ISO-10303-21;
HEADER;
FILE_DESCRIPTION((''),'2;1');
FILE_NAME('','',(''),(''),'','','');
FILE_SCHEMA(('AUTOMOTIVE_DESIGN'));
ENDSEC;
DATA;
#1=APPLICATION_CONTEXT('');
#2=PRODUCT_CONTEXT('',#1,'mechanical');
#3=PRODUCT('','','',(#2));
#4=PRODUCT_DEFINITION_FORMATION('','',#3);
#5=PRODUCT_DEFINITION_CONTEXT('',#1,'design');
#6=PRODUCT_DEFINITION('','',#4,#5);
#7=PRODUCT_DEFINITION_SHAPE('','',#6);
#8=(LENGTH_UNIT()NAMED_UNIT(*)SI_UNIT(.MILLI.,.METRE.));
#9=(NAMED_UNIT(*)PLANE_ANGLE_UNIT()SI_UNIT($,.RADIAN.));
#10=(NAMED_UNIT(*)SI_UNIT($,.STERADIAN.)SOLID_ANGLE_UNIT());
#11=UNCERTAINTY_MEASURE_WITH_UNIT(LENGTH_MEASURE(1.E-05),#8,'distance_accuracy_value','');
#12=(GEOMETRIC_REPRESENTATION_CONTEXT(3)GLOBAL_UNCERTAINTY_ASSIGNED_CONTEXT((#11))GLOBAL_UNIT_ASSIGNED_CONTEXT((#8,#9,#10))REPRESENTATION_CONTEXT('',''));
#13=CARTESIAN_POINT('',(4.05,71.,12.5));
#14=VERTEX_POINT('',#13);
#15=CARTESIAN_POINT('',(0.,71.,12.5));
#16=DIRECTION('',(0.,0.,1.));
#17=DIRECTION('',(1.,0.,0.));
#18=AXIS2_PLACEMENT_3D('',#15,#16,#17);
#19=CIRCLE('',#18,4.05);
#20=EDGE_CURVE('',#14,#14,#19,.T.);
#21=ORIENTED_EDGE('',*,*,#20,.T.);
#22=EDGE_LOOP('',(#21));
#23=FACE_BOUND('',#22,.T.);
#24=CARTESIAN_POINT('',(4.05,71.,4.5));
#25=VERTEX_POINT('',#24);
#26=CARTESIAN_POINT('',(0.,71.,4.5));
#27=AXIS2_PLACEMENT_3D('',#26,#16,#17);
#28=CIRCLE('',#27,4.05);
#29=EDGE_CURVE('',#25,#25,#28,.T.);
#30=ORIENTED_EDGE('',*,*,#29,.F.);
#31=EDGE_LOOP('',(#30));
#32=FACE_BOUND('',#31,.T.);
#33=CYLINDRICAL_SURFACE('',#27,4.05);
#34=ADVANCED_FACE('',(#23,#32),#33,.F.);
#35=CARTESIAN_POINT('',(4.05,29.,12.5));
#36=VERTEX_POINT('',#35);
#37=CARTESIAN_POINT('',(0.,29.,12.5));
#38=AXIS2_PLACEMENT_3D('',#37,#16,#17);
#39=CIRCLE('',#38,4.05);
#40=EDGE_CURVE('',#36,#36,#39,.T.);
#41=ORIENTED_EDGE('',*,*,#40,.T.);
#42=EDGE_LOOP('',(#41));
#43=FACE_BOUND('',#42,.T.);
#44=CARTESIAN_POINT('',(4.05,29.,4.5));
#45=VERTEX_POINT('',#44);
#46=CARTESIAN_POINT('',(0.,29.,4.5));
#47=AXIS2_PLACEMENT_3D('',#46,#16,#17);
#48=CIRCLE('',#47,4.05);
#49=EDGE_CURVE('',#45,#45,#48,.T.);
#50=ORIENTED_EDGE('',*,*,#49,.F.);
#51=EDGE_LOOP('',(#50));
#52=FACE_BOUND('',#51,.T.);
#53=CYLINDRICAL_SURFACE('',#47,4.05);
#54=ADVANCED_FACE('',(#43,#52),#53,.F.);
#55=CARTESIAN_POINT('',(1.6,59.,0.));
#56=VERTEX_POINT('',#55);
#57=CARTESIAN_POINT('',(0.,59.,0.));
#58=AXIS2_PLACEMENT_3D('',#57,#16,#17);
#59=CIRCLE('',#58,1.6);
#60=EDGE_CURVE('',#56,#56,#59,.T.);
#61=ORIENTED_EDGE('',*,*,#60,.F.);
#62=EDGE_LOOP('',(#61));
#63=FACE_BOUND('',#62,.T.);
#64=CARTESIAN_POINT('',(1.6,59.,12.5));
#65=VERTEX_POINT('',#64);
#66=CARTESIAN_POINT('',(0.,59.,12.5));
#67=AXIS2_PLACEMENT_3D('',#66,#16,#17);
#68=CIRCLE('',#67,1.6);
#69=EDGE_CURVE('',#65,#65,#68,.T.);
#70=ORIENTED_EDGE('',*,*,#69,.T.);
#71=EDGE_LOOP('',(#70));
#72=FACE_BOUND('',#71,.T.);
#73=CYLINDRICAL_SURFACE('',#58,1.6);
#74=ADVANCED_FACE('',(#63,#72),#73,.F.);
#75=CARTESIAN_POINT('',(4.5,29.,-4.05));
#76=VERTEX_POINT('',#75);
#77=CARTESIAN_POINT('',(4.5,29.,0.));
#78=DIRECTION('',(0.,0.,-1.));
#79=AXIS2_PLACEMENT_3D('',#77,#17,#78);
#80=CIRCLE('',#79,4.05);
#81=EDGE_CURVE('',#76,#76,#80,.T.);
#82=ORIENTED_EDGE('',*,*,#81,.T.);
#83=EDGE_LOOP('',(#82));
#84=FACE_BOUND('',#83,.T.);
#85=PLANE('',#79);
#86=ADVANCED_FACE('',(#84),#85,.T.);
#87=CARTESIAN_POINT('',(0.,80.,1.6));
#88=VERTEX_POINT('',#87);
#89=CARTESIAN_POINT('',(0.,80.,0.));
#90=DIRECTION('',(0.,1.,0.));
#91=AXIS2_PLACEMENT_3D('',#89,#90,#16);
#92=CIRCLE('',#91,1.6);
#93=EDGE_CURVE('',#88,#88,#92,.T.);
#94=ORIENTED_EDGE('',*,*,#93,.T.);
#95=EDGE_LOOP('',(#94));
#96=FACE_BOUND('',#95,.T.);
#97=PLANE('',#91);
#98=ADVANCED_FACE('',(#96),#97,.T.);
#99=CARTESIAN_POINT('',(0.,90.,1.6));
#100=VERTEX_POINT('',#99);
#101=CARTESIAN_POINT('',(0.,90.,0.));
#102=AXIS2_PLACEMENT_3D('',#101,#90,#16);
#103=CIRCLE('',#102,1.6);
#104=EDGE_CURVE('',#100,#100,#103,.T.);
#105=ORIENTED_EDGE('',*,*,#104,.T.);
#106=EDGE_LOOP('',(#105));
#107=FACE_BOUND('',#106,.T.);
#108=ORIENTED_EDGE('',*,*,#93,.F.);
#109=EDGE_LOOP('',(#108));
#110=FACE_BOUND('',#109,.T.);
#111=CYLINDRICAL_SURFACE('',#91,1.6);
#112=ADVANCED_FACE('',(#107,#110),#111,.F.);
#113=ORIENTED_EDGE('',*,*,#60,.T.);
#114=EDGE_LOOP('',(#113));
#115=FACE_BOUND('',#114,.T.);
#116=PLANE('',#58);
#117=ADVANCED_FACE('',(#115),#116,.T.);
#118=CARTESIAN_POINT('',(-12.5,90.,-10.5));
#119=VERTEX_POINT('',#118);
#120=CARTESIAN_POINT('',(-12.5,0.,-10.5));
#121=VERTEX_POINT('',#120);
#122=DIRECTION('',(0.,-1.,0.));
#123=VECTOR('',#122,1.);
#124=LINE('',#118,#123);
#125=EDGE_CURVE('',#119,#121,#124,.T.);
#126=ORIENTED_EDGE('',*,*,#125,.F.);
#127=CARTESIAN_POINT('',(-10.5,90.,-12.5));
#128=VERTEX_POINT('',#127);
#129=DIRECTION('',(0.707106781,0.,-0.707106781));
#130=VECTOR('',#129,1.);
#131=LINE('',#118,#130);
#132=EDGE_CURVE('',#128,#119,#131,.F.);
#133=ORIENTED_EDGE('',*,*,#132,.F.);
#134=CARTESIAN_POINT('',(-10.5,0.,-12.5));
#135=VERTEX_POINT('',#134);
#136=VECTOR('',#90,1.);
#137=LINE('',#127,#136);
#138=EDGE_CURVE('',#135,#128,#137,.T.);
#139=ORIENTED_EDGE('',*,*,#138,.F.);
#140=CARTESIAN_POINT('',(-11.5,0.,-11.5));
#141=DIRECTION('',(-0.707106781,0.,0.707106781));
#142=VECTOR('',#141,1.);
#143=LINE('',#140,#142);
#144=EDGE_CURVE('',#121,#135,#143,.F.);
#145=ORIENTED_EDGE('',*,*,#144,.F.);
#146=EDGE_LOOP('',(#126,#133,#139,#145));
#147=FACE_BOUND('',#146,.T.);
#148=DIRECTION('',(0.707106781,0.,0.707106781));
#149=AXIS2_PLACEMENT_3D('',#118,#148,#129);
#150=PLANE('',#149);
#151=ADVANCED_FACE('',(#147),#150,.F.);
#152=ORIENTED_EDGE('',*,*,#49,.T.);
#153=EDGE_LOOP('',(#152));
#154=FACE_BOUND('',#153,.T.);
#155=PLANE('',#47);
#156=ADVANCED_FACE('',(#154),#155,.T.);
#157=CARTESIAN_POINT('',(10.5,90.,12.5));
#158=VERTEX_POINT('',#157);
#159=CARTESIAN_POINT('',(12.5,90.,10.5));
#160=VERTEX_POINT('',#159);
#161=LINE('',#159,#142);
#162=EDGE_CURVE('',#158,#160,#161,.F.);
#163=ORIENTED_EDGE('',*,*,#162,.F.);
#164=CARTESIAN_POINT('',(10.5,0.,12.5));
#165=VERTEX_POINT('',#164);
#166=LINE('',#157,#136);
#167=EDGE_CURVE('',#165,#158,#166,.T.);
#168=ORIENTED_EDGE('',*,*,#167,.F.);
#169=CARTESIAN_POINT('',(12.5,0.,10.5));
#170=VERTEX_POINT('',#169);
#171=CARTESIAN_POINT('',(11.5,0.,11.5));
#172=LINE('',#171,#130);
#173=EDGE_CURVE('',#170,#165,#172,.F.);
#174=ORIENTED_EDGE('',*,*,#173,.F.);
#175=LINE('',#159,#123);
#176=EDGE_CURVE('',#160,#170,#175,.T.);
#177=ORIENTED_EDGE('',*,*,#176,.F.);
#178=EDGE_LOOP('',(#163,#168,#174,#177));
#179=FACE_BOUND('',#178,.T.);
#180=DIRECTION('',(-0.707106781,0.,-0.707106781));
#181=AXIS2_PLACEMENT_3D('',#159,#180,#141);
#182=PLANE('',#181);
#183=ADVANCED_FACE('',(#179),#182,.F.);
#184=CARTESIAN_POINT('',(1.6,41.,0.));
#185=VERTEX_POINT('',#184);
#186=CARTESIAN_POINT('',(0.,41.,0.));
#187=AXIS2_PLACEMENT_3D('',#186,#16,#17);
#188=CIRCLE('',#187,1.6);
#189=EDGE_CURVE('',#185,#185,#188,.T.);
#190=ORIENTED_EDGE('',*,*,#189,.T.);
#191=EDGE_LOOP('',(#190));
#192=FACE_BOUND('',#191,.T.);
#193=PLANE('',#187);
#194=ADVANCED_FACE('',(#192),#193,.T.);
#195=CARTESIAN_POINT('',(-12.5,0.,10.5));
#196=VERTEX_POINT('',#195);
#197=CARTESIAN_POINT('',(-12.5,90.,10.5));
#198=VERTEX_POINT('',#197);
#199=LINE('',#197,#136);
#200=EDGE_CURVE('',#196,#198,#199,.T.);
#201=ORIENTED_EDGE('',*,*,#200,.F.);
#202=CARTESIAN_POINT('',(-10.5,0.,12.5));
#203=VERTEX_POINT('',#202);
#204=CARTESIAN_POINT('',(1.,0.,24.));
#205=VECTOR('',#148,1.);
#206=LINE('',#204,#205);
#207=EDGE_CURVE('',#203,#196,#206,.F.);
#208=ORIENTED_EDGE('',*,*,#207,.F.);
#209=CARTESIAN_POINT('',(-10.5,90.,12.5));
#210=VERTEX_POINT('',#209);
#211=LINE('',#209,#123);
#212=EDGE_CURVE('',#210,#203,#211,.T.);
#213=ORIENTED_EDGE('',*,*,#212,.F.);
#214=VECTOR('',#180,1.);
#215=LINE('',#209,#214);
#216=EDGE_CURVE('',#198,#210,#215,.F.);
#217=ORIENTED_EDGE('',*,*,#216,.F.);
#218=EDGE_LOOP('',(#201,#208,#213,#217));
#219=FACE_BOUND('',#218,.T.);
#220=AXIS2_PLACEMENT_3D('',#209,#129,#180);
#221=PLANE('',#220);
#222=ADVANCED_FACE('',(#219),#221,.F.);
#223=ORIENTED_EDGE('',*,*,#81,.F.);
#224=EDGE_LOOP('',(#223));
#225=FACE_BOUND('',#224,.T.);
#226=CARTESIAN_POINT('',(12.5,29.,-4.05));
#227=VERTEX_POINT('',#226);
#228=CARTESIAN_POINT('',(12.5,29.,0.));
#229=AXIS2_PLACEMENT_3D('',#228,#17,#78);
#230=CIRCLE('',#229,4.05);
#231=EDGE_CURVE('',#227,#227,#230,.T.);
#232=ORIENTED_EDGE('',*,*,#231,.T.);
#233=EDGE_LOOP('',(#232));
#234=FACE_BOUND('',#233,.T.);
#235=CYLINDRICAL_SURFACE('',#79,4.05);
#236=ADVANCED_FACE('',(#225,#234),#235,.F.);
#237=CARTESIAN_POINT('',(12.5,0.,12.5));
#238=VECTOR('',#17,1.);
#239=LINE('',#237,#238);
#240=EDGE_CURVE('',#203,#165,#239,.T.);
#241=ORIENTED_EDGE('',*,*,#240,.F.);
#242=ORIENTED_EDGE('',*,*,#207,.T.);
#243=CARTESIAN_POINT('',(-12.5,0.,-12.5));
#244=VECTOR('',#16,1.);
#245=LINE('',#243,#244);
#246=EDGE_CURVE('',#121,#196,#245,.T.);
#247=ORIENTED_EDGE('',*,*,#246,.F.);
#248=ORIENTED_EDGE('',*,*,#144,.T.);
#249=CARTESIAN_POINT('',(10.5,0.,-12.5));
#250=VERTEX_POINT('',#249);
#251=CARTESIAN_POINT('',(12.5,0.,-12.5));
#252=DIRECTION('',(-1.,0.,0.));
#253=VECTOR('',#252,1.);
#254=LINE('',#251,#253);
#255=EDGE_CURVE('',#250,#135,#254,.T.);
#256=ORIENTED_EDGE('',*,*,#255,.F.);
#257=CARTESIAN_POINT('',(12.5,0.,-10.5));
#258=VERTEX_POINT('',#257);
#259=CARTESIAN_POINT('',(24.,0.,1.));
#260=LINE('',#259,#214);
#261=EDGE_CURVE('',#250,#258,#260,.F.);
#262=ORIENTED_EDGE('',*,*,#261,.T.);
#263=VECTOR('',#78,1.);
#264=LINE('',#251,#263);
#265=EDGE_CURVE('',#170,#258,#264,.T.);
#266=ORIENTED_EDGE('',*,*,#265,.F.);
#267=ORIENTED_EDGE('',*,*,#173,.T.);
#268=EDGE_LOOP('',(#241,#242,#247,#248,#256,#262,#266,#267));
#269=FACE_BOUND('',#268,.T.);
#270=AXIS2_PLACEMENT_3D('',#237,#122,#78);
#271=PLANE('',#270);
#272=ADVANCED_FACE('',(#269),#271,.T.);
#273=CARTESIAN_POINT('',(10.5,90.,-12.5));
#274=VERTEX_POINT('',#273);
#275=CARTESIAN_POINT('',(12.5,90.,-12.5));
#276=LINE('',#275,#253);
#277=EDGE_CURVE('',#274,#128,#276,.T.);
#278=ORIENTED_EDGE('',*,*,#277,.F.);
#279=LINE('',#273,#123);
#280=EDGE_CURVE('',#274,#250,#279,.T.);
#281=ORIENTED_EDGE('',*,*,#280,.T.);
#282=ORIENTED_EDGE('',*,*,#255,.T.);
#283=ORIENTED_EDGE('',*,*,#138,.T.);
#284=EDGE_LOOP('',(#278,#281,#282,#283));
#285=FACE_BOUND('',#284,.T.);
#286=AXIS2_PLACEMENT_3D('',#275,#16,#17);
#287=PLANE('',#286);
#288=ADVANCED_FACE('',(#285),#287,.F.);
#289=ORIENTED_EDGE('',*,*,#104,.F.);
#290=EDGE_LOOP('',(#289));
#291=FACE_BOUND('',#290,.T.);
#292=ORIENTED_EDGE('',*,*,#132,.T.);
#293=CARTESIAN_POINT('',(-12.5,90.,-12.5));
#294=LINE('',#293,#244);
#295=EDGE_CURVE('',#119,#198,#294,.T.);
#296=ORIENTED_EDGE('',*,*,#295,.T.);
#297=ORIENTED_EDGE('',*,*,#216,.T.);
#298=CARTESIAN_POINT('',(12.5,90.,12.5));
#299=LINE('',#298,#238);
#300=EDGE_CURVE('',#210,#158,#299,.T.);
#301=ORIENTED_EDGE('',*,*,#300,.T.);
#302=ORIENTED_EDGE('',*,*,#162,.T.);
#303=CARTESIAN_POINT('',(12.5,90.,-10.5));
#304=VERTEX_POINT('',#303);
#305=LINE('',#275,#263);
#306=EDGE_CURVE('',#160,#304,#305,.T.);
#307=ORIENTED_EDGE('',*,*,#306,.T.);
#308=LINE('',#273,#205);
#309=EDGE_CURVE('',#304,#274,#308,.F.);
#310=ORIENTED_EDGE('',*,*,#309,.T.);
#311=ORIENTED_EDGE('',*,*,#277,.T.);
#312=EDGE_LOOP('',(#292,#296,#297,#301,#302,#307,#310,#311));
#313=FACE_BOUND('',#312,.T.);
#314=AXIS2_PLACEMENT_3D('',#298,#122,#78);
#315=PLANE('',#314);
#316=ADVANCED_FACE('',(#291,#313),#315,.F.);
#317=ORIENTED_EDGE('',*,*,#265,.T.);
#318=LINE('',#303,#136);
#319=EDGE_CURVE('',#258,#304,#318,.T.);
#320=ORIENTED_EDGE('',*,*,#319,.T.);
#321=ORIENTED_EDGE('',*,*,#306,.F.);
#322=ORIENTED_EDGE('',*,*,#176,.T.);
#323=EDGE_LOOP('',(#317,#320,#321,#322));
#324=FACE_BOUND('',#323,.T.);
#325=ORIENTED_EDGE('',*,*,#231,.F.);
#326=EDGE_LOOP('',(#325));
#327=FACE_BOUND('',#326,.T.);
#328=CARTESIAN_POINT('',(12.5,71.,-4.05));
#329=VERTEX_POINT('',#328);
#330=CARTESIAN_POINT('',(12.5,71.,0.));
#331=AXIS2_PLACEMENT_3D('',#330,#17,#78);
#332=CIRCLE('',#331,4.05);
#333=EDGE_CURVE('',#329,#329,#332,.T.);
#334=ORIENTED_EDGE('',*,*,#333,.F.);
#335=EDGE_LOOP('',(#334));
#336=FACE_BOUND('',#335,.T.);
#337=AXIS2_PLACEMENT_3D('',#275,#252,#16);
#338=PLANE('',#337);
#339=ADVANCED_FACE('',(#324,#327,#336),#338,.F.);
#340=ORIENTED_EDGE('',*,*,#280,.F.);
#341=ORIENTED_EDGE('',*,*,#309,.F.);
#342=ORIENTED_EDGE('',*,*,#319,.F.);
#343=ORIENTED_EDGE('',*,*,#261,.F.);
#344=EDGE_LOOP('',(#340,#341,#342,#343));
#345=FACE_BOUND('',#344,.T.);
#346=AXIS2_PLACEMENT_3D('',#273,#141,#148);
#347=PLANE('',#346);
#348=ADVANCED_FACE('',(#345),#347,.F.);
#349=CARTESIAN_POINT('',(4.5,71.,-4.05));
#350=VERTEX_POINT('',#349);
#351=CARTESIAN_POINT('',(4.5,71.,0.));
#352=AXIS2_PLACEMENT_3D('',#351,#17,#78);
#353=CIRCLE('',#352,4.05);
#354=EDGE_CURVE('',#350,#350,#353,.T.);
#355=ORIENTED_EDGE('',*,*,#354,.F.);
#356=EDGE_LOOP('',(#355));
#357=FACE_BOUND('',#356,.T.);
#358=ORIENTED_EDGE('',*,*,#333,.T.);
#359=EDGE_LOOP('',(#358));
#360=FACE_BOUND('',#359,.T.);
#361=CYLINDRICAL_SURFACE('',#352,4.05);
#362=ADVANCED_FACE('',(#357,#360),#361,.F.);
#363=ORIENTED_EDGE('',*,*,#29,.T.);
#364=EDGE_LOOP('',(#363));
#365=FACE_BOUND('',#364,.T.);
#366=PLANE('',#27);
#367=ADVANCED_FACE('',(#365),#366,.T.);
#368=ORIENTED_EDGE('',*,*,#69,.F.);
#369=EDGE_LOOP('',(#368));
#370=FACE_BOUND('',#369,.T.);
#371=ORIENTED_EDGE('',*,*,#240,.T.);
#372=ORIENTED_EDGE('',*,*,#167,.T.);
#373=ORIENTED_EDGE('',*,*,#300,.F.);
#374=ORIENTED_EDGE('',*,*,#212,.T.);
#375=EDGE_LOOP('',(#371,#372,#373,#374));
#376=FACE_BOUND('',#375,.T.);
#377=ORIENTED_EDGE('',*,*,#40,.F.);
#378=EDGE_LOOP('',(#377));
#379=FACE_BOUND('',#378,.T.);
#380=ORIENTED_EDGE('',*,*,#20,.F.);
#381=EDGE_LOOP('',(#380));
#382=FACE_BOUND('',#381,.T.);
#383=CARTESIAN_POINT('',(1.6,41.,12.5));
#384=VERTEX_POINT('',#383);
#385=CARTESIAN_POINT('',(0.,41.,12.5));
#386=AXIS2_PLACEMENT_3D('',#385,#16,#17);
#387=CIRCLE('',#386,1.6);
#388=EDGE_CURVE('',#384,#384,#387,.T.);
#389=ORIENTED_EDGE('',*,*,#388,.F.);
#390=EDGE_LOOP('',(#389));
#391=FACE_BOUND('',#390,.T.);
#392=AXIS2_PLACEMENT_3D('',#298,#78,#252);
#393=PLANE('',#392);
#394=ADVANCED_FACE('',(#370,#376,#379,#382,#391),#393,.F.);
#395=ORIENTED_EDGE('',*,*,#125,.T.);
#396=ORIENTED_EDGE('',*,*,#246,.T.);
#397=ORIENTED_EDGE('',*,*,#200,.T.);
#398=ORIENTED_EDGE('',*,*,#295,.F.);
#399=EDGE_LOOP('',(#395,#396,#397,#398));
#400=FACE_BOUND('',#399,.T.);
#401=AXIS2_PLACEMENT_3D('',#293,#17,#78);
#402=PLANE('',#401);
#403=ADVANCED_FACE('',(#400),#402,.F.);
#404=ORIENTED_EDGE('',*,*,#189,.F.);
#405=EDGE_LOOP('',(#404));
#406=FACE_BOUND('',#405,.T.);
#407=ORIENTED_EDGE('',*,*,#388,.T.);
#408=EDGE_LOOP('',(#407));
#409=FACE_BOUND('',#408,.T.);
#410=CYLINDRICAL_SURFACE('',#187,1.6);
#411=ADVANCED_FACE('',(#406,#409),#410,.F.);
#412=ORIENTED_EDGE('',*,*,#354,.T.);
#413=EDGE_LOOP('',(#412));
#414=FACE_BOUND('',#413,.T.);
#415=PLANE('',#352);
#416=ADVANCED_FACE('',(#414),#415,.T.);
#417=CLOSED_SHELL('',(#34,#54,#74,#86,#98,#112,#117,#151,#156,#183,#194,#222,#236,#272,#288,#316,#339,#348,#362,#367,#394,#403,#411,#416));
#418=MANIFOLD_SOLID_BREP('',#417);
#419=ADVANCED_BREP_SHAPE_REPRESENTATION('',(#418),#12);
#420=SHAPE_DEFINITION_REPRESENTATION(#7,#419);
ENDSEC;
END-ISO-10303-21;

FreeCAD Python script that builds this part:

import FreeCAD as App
import Part
import Sketcher
Q = App.Units.Quantity


def edges_at(feature, points):
    """Names of the edges that pass closest to the given points."""
    edges = feature.Shape.Edges
    near = lambda p: min(range(len(edges)), key=lambda i: edges[i].distToShape(Part.Vertex(*p))[0])
    return sorted({f"Edge{near(p) + 1}" for p in points})

doc = App.newDocument("Part")
body = doc.addObject("PartDesign::Body", "Body")

# Sketch on XZ plane
sketch1 = body.newObject("Sketcher::SketchObject", "Sketch")
sketch1.AttachmentSupport = (doc.getObject("XZ_Plane"), [""])
sketch1.MapMode = "FlatFace"
sketch1.addGeometry(Part.LineSegment(App.Vector(-12, -12, 0), App.Vector(-12, 12, 0)), False)
sketch1.addGeometry(Part.LineSegment(App.Vector(-12, 12, 0), App.Vector(12, 12, 0)), False)
sketch1.addGeometry(Part.LineSegment(App.Vector(12, 12, 0), App.Vector(12, -12, 0)), False)
sketch1.addGeometry(Part.LineSegment(App.Vector(12, -12, 0), App.Vector(-12, -12, 0)), False)
sketch1.addConstraint(Sketcher.Constraint("Coincident", 0, 2, 1, 1))
sketch1.addConstraint(Sketcher.Constraint("Coincident", 1, 2, 2, 1))
sketch1.addConstraint(Sketcher.Constraint("Coincident", 2, 2, 3, 1))
sketch1.addConstraint(Sketcher.Constraint("Coincident", 3, 2, 0, 1))
sketch1.addConstraint(Sketcher.Constraint("Vertical", 0))
sketch1.addConstraint(Sketcher.Constraint("Horizontal", 1))
sketch1.addConstraint(Sketcher.Constraint("Vertical", 2))
sketch1.addConstraint(Sketcher.Constraint("Horizontal", 3))
sketch1.addConstraint(Sketcher.Constraint("Symmetric", 0, 2, 2, 2, -1, 1))
sketch1.addConstraint(Sketcher.Constraint("Equal", 3, 0))
sketch1.addConstraint(Sketcher.Constraint("DistanceX", 1, 1, 1, 2, Q("25 mm")))
pad1 = body.newObject("PartDesign::Pad", "Pad")
pad1.Profile = sketch1
pad1.Length = 90
pad1.Reversed = True

# Sketch on YZ plane
sketch2 = body.newObject("Sketcher::SketchObject", "Sketch001")
sketch2.AttachmentSupport = (doc.getObject("YZ_Plane"), [""])
sketch2.MapMode = "FlatFace"
sketch2.AttachmentOffset = App.Placement(App.Vector(0, 0, 12.5), App.Rotation())
sketch2.addGeometry(Part.Circle(App.Vector(71, 0, 0), App.Vector(0, 0, 1), 4), False)
sketch2.addGeometry(Part.Circle(App.Vector(29, 0, 0), App.Vector(0, 0, 1), 4), False)
sketch2.addConstraint(Sketcher.Constraint("Equal", 0, 1))
sketch2.addConstraint(Sketcher.Constraint("PointOnObject", 0, 3, -1))
sketch2.addConstraint(Sketcher.Constraint("PointOnObject", 1, 3, -1))
sketch2.addConstraint(Sketcher.Constraint("Diameter", 0, Q("8.1 mm")))
sketch2.addConstraint(Sketcher.Constraint("DistanceX", -1, 1, 0, 3, Q("71 mm")))
sketch2.addConstraint(Sketcher.Constraint("DistanceX", -1, 1, 1, 3, Q("29 mm")))
pocket1 = body.newObject("PartDesign::Pocket", "Pocket")
pocket1.Profile = sketch2
pocket1.Length = 8

# Sketch on XY plane
sketch3 = body.newObject("Sketcher::SketchObject", "Sketch002")
sketch3.AttachmentSupport = (doc.getObject("XY_Plane"), [""])
sketch3.MapMode = "FlatFace"
sketch3.AttachmentOffset = App.Placement(App.Vector(0, 0, 12.5), App.Rotation())
sketch3.addGeometry(Part.Circle(App.Vector(0, 29, 0), App.Vector(0, 0, 1), 4), False)
sketch3.addGeometry(Part.Circle(App.Vector(0, 71, 0), App.Vector(0, 0, 1), 4), False)
sketch3.addConstraint(Sketcher.Constraint("Equal", 0, 1))
sketch3.addConstraint(Sketcher.Constraint("PointOnObject", 0, 3, -2))
sketch3.addConstraint(Sketcher.Constraint("PointOnObject", 1, 3, -2))
sketch3.addConstraint(Sketcher.Constraint("Diameter", 0, Q("8.1 mm")))
sketch3.addConstraint(Sketcher.Constraint("DistanceY", -1, 1, 0, 3, Q("29 mm")))
sketch3.addConstraint(Sketcher.Constraint("DistanceY", -1, 1, 1, 3, Q("71 mm")))
pocket2 = body.newObject("PartDesign::Pocket", "Pocket001")
pocket2.Profile = sketch3
pocket2.Length = 8
doc.recompute()

chamfer = body.newObject("PartDesign::Chamfer", "Chamfer")
chamfer.Base = (pocket2, edges_at(pocket2, [
    (12.5, 45, 12.5),
    (-12.5, 45, 12.5),
    (-12.5, 45, -12.5),
    (12.5, 45, -12.5),
]))
chamfer.Size = 2

# Sketch on XY plane
sketch4 = body.newObject("Sketcher::SketchObject", "Sketch003")
sketch4.AttachmentSupport = (doc.getObject("XY_Plane"), [""])
sketch4.MapMode = "FlatFace"
sketch4.AttachmentOffset = App.Placement(App.Vector(0, 0, 12.5), App.Rotation())
sketch4.addGeometry(Part.Circle(App.Vector(0, 59, 0), App.Vector(0, 0, 1), 1.6), False)
sketch4.addGeometry(Part.Circle(App.Vector(0, 41, 0), App.Vector(0, 0, 1), 1.6), False)
sketch4.addConstraint(Sketcher.Constraint("Equal", 0, 1))
sketch4.addConstraint(Sketcher.Constraint("PointOnObject", 0, 3, -2))
sketch4.addConstraint(Sketcher.Constraint("PointOnObject", 1, 3, -2))
sketch4.addConstraint(Sketcher.Constraint("Diameter", 0, Q("3.2 mm")))
sketch4.addConstraint(Sketcher.Constraint("DistanceY", -1, 1, 0, 3, Q("59 mm")))
sketch4.addConstraint(Sketcher.Constraint("DistanceY", -1, 1, 1, 3, Q("41 mm")))
pocket3 = body.newObject("PartDesign::Pocket", "Pocket002")
pocket3.Profile = sketch4
pocket3.Length = 12.5

# Sketch on XZ plane
sketch5 = body.newObject("Sketcher::SketchObject", "Sketch004")
sketch5.AttachmentSupport = (doc.getObject("XZ_Plane"), [""])
sketch5.MapMode = "FlatFace"
sketch5.AttachmentOffset = App.Placement(App.Vector(0, 0, -90), App.Rotation())
sketch5.addGeometry(Part.Circle(App.Vector(0, 0, 0), App.Vector(0, 0, 1), 1.6), False)
sketch5.addConstraint(Sketcher.Constraint("Coincident", 0, 3, -1, 1))
sketch5.addConstraint(Sketcher.Constraint("Diameter", 0, Q("3.2 mm")))
pocket4 = body.newObject("PartDesign::Pocket", "Pocket003")
pocket4.Profile = sketch5
pocket4.Length = 10
pocket4.Reversed = True

doc.recompute()
